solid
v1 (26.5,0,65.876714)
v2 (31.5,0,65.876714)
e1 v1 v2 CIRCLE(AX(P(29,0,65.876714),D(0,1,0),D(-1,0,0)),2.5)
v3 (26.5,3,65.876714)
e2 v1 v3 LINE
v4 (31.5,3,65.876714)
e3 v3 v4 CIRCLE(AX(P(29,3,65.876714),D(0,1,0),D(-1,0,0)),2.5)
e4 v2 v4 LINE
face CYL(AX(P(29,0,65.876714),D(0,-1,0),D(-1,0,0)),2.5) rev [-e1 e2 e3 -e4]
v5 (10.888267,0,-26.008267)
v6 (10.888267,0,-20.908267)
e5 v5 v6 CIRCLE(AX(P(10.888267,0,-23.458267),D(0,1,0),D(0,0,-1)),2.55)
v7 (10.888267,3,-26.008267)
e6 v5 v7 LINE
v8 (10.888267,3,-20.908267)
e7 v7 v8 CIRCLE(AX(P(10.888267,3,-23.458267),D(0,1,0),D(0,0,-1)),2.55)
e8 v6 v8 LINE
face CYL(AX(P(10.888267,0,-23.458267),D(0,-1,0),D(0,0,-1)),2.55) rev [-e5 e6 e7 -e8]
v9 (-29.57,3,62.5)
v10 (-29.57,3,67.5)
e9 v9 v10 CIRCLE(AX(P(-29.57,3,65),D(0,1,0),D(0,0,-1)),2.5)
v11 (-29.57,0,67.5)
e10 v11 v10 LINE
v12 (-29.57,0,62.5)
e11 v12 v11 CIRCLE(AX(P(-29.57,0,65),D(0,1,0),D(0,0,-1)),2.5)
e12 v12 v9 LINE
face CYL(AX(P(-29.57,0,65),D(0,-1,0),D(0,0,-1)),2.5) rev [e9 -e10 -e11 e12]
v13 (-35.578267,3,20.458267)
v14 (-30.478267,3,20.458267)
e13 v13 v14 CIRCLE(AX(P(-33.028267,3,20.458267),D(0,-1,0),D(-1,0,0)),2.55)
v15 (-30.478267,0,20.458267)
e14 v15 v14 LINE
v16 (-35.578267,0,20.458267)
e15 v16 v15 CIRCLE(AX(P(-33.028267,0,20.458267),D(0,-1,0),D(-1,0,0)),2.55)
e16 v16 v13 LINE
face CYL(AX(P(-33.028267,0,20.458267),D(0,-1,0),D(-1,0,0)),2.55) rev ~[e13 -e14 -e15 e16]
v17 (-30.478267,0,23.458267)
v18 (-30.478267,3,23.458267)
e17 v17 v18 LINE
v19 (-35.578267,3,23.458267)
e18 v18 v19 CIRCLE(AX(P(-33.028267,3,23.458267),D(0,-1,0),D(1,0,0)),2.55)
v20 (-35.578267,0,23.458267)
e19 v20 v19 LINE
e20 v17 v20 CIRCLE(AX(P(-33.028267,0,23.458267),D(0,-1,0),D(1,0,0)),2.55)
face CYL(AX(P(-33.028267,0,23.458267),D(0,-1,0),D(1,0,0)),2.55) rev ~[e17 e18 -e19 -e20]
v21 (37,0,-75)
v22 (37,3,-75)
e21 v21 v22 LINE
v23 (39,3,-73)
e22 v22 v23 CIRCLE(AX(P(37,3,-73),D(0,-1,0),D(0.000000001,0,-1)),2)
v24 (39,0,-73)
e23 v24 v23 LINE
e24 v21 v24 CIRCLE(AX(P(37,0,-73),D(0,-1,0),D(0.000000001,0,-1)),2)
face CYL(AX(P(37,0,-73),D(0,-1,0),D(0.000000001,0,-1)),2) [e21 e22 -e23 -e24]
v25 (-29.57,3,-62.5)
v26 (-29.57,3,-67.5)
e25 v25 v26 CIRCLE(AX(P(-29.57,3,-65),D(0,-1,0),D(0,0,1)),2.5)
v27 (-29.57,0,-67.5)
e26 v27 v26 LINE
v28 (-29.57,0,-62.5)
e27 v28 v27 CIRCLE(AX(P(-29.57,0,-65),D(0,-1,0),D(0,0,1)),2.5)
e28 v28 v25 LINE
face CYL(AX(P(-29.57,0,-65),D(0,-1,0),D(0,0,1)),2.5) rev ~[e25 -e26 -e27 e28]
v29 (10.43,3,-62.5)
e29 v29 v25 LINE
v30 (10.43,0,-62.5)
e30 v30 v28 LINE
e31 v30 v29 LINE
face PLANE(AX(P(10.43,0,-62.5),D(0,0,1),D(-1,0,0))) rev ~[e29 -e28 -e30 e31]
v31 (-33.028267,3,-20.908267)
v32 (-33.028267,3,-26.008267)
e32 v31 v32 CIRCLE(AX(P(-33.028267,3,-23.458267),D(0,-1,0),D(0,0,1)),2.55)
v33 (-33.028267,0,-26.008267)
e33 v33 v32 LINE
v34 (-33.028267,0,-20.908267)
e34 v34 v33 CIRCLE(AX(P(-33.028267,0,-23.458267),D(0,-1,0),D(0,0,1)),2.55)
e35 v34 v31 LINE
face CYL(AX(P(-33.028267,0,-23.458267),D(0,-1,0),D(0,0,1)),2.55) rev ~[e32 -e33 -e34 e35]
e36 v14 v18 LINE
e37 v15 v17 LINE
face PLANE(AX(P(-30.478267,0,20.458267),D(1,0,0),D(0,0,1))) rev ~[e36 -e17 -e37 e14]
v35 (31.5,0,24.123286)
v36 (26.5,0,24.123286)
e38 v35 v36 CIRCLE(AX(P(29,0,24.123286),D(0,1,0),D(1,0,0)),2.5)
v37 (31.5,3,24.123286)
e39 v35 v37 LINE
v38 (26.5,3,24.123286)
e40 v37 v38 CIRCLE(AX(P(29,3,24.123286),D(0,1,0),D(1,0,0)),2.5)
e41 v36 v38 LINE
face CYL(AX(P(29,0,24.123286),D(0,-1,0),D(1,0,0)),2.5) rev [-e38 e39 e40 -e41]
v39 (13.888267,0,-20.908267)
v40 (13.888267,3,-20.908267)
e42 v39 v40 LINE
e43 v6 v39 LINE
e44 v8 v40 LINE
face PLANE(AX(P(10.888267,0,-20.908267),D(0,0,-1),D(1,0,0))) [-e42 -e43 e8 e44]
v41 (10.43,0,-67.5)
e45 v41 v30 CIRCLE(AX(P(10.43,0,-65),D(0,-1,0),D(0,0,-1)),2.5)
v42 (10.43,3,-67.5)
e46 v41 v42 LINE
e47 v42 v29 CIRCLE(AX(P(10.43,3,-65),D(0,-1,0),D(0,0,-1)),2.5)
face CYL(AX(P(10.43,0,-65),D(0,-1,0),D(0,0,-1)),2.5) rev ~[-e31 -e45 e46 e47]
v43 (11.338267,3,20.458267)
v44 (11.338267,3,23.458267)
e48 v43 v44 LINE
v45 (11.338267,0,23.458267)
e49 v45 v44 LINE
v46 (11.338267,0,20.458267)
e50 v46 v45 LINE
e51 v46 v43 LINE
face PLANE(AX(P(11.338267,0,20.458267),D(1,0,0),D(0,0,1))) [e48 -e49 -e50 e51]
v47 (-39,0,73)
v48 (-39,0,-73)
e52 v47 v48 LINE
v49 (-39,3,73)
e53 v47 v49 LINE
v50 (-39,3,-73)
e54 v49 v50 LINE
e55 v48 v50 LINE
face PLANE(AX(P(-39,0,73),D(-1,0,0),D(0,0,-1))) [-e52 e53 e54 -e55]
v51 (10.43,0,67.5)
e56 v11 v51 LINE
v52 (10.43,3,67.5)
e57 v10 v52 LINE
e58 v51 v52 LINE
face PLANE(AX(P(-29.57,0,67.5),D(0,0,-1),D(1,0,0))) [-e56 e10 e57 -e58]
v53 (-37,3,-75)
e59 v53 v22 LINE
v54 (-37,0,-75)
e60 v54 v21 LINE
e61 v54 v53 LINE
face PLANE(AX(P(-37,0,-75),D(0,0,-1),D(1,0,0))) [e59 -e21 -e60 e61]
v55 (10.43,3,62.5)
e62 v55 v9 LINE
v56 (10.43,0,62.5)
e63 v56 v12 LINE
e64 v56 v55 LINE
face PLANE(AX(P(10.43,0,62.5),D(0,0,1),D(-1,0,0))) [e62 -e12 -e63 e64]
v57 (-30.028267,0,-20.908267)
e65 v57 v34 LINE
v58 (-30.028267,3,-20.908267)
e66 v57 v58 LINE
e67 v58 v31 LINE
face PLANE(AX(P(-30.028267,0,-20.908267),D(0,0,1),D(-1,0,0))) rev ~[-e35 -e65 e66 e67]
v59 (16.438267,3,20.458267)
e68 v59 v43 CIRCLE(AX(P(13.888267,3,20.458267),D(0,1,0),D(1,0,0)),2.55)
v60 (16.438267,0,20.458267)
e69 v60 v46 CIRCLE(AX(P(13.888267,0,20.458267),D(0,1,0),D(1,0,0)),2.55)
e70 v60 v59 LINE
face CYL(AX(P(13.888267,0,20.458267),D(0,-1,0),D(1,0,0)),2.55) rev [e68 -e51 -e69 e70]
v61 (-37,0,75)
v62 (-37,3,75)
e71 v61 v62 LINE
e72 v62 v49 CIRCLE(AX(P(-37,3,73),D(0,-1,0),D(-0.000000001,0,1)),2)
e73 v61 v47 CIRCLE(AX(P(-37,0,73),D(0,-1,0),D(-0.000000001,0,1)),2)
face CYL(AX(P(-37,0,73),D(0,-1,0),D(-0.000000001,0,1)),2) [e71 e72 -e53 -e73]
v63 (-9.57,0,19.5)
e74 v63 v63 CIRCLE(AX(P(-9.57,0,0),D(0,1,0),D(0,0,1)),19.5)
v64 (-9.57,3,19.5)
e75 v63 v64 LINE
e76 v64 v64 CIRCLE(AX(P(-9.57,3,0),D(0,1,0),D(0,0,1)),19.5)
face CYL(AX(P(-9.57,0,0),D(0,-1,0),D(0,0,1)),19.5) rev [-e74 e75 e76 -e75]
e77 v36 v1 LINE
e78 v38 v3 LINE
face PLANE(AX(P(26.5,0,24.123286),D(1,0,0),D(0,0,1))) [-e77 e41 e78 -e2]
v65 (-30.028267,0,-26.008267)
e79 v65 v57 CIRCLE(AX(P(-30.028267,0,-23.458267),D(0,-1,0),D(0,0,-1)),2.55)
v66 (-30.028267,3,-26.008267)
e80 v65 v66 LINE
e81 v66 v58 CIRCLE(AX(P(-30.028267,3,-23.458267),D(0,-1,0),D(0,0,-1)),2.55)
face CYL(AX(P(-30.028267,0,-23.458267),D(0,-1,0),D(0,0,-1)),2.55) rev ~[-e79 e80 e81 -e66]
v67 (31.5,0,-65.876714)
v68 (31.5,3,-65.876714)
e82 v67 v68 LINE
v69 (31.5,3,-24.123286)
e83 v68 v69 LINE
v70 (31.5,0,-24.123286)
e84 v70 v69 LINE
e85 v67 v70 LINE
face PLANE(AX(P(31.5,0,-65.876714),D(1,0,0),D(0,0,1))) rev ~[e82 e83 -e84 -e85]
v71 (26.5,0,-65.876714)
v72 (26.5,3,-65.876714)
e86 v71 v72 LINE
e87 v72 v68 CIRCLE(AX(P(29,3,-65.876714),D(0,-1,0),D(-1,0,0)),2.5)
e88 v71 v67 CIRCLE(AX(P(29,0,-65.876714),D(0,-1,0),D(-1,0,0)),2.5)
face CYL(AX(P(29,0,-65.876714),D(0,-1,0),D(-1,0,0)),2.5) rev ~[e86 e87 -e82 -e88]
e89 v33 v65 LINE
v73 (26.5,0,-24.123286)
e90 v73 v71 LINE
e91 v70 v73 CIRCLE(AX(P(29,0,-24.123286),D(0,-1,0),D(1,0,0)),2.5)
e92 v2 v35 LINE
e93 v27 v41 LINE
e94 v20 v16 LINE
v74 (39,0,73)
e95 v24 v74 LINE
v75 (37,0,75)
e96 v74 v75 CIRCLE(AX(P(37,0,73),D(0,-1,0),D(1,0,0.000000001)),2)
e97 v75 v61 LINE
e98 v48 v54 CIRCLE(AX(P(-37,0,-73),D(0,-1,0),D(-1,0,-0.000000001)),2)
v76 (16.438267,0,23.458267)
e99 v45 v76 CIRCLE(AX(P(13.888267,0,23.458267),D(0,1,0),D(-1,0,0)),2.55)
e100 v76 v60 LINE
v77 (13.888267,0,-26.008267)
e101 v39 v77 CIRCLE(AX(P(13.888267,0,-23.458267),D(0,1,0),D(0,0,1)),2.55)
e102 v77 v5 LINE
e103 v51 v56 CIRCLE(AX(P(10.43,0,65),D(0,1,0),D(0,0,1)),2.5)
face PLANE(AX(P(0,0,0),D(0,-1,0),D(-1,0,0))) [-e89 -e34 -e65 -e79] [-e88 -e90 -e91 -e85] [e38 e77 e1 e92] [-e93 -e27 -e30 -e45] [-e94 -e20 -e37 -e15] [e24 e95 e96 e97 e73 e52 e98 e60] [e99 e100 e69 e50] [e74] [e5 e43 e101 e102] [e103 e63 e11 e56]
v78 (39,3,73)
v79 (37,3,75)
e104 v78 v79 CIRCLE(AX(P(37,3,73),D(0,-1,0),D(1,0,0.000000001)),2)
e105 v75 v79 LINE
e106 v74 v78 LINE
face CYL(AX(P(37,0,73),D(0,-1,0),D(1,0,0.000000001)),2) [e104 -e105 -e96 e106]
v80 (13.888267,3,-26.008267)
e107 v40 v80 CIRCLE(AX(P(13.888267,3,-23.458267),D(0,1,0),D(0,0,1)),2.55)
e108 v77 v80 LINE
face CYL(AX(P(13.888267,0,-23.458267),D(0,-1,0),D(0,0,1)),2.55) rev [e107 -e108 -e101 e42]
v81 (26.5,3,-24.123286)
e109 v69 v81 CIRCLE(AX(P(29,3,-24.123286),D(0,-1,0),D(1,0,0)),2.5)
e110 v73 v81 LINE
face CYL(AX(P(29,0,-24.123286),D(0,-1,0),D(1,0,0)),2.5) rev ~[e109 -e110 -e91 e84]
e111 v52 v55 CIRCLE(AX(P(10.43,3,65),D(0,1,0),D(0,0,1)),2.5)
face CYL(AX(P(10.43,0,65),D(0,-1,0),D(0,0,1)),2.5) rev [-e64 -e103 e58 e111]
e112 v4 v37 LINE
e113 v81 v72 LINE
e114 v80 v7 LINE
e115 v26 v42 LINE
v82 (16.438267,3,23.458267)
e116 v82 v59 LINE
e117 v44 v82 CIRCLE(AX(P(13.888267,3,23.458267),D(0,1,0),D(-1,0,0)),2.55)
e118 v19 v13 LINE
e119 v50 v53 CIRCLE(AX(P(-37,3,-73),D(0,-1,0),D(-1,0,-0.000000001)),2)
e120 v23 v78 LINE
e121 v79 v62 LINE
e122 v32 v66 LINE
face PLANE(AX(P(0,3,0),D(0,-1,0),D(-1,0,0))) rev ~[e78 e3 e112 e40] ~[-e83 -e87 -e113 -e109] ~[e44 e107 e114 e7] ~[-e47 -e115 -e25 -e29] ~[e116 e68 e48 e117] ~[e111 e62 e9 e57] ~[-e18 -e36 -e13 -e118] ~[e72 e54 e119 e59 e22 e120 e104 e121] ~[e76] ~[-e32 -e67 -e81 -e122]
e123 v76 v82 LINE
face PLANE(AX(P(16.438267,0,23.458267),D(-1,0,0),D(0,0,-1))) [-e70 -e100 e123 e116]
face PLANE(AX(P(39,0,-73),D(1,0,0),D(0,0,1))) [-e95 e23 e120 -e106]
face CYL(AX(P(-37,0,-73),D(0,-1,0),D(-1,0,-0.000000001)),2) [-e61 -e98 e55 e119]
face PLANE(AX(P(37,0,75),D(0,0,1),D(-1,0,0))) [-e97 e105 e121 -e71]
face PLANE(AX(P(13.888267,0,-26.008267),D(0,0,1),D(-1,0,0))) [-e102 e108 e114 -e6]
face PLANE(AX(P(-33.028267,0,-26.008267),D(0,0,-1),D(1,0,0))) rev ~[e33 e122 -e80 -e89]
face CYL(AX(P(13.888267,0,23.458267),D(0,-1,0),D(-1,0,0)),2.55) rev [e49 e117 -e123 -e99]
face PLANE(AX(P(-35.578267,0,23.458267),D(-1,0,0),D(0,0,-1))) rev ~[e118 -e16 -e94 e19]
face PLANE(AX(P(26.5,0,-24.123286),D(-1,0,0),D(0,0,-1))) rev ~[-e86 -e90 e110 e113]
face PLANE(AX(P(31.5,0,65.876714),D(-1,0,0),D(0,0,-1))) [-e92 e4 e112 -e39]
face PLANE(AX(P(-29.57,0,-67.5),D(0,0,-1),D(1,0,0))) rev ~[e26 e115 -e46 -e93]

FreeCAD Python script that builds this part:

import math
import FreeCAD as App
import Part
import Sketcher

doc = App.newDocument("Part")
body = doc.addObject("PartDesign::Body", "Body")

# Sketch on XZ plane
sketch1 = body.newObject("Sketcher::SketchObject", "Sketch")
sketch1.AttachmentSupport = (doc.getObject("XZ_Plane"), [""])
sketch1.MapMode = "FlatFace"
sketch1.addGeometry([
    Part.LineSegment(App.Vector(37, -75, 0), App.Vector(-37, -75, 0)),  # 0
    Part.ArcOfCircle(Part.Circle(App.Vector(-37, -73, 0), App.Vector(0, 0, 1), 2), math.radians(-180), math.radians(-90)),  # 1
    Part.LineSegment(App.Vector(-39, -73, 0), App.Vector(-39, 73, 0)),  # 2
    Part.ArcOfCircle(Part.Circle(App.Vector(-37, 73, 0), App.Vector(0, 0, 1), 2), math.radians(90), math.radians(180)),  # 3
    Part.LineSegment(App.Vector(-37, 75, 0), App.Vector(37, 75, 0)),  # 4
    Part.ArcOfCircle(Part.Circle(App.Vector(37, 73, 0), App.Vector(0, 0, 1), 2), math.radians(0), math.radians(90)),  # 5
    Part.LineSegment(App.Vector(39, 73, 0), App.Vector(39, -73, 0)),  # 6
    Part.ArcOfCircle(Part.Circle(App.Vector(37, -73, 0), App.Vector(0, 0, 1), 2), math.radians(-90), math.radians(0)),  # 7
    Part.ArcOfCircle(Part.Circle(App.Vector(29, 65.9, 0), App.Vector(0, 0, 1), 2.5), math.radians(0), math.radians(180)),  # 8
    Part.LineSegment(App.Vector(26.5, 65.9, 0), App.Vector(26.5, 24.1, 0)),  # 9
    Part.ArcOfCircle(Part.Circle(App.Vector(29, 24.1, 0), App.Vector(0, 0, 1), 2.5), math.radians(180), math.radians(360)),  # 10
    Part.LineSegment(App.Vector(31.5, 24.1, 0), App.Vector(31.5, 65.9, 0)),  # 11
    Part.ArcOfCircle(Part.Circle(App.Vector(13.9, 23.5, 0), App.Vector(0, 0, 1), 2.5), math.radians(0), math.radians(180)),  # 12
    Part.LineSegment(App.Vector(11.3, 23.5, 0), App.Vector(11.3, 20.5, 0)),  # 13
    Part.ArcOfCircle(Part.Circle(App.Vector(13.9, 20.5, 0), App.Vector(0, 0, 1), 2.5), math.radians(180), math.radians(360)),  # 14
    Part.LineSegment(App.Vector(16.4, 20.5, 0), App.Vector(16.4, 23.5, 0)),  # 15
    Part.ArcOfCircle(Part.Circle(App.Vector(-29.6, 65, 0), App.Vector(0, 0, 1), 2.5), math.radians(90), math.radians(270)),  # 16
    Part.LineSegment(App.Vector(-29.6, 62.5, 0), App.Vector(10.4, 62.5, 0)),  # 17
    Part.ArcOfCircle(Part.Circle(App.Vector(10.4, 65, 0), App.Vector(0, 0, 1), 2.5), math.radians(-90), math.radians(90)),  # 18
    Part.LineSegment(App.Vector(10.4, 67.5, 0), App.Vector(-29.6, 67.5, 0)),  # 19
    Part.LineSegment(App.Vector(-35.6, 23.5, 0), App.Vector(-35.6, 20.5, 0)),  # 20
    Part.ArcOfCircle(Part.Circle(App.Vector(-33, 20.5, 0), App.Vector(0, 0, 1), 2.5), math.radians(180), math.radians(360)),  # 21
    Part.LineSegment(App.Vector(-30.5, 20.5, 0), App.Vector(-30.5, 23.5, 0)),  # 22
    Part.ArcOfCircle(Part.Circle(App.Vector(-33, 23.5, 0), App.Vector(0, 0, 1), 2.5), math.radians(0), math.radians(180)),  # 23
    Part.ArcOfCircle(Part.Circle(App.Vector(13.9, -23.5, 0), App.Vector(0, 0, 1), 2.5), math.radians(-90), math.radians(90)),  # 24
    Part.LineSegment(App.Vector(13.9, -20.9, 0), App.Vector(10.9, -20.9, 0)),  # 25
    Part.ArcOfCircle(Part.Circle(App.Vector(10.9, -23.5, 0), App.Vector(0, 0, 1), 2.5), math.radians(90), math.radians(270)),  # 26
    Part.LineSegment(App.Vector(10.9, -26, 0), App.Vector(13.9, -26, 0)),  # 27
    Part.LineSegment(App.Vector(31.5, -65.9, 0), App.Vector(31.5, -24.1, 0)),  # 28
    Part.ArcOfCircle(Part.Circle(App.Vector(29, -24.1, 0), App.Vector(0, 0, 1), 2.5), math.radians(0), math.radians(180)),  # 29
    Part.LineSegment(App.Vector(26.5, -24.1, 0), App.Vector(26.5, -65.9, 0)),  # 30
    Part.ArcOfCircle(Part.Circle(App.Vector(29, -65.9, 0), App.Vector(0, 0, 1), 2.5), math.radians(180), math.radians(360)),  # 31
    Part.Circle(App.Vector(-9.6, 0, 0), App.Vector(0, 0, 1), 19.5),  # 32
    Part.LineSegment(App.Vector(-33, -26, 0), App.Vector(-30, -26, 0)),  # 33
    Part.ArcOfCircle(Part.Circle(App.Vector(-30, -23.5, 0), App.Vector(0, 0, 1), 2.5), math.radians(-90), math.radians(90)),  # 34
    Part.LineSegment(App.Vector(-30, -20.9, 0), App.Vector(-33, -20.9, 0)),  # 35
    Part.ArcOfCircle(Part.Circle(App.Vector(-33, -23.5, 0), App.Vector(0, 0, 1), 2.5), math.radians(90), math.radians(270)),  # 36
    Part.LineSegment(App.Vector(-29.6, -67.5, 0), App.Vector(10.4, -67.5, 0)),  # 37
    Part.ArcOfCircle(Part.Circle(App.Vector(10.4, -65, 0), App.Vector(0, 0, 1), 2.5), math.radians(-90), math.radians(90)),  # 38
    Part.LineSegment(App.Vector(10.4, -62.5, 0), App.Vector(-29.6, -62.5, 0)),  # 39
    Part.ArcOfCircle(Part.Circle(App.Vector(-29.6, -65, 0), App.Vector(0, 0, 1), 2.5), math.radians(90), math.radians(270)),  # 40
], False)
sketch1.addConstraint([
    Sketcher.Constraint("Tangent", 0, 2, 1, 2),
    Sketcher.Constraint("Tangent", 1, 1, 2, 1),
    Sketcher.Constraint("Tangent", 2, 2, 3, 2),
    Sketcher.Constraint("Tangent", 3, 1, 4, 1),
    Sketcher.Constraint("Tangent", 4, 2, 5, 2),
    Sketcher.Constraint("Tangent", 5, 1, 6, 1),
    Sketcher.Constraint("Tangent", 6, 2, 7, 2),
    Sketcher.Constraint("Tangent", 7, 1, 0, 1),
    Sketcher.Constraint("Tangent", 8, 2, 9, 1),
    Sketcher.Constraint("Tangent", 9, 2, 10, 1),
    Sketcher.Constraint("Tangent", 10, 2, 11, 1),
    Sketcher.Constraint("Tangent", 11, 2, 8, 1),
    Sketcher.Constraint("Tangent", 12, 2, 13, 1),
    Sketcher.Constraint("Tangent", 13, 2, 14, 1),
    Sketcher.Constraint("Tangent", 14, 2, 15, 1),
    Sketcher.Constraint("Tangent", 15, 2, 12, 1),
    Sketcher.Constraint("Tangent", 16, 2, 17, 1),
    Sketcher.Constraint("Tangent", 17, 2, 18, 1),
    Sketcher.Constraint("Tangent", 18, 2, 19, 1),
    Sketcher.Constraint("Tangent", 19, 2, 16, 1),
    Sketcher.Constraint("Tangent", 20, 2, 21, 1),
    Sketcher.Constraint("Tangent", 21, 2, 22, 1),
    Sketcher.Constraint("Tangent", 22, 2, 23, 1),
    Sketcher.Constraint("Tangent", 23, 2, 20, 1),
    Sketcher.Constraint("Tangent", 24, 2, 25, 1),
    Sketcher.Constraint("Tangent", 25, 2, 26, 1),
    Sketcher.Constraint("Tangent", 26, 2, 27, 1),
    Sketcher.Constraint("Tangent", 27, 2, 24, 1),
    Sketcher.Constraint("Tangent", 28, 2, 29, 1),
    Sketcher.Constraint("Tangent", 29, 2, 30, 1),
    Sketcher.Constraint("Tangent", 30, 2, 31, 1),
    Sketcher.Constraint("Tangent", 31, 2, 28, 1),
    Sketcher.Constraint("Tangent", 33, 2, 34, 1),
    Sketcher.Constraint("Tangent", 34, 2, 35, 1),
    Sketcher.Constraint("Tangent", 35, 2, 36, 1),
    Sketcher.Constraint("Tangent", 36, 2, 33, 1),
    Sketcher.Constraint("Tangent", 37, 2, 38, 1),
    Sketcher.Constraint("Tangent", 38, 2, 39, 1),
    Sketcher.Constraint("Tangent", 39, 2, 40, 1),
    Sketcher.Constraint("Tangent", 40, 2, 37, 1),
    Sketcher.Constraint("Horizontal", 0),
    Sketcher.Constraint("Vertical", 2),
    Sketcher.Constraint("Horizontal", 4),
    Sketcher.Constraint("Vertical", 6),
    Sketcher.Constraint("Vertical", 9),
    Sketcher.Constraint("Vertical", 11),
    Sketcher.Constraint("Vertical", 13),
    Sketcher.Constraint("Vertical", 15),
    Sketcher.Constraint("Horizontal", 17),
    Sketcher.Constraint("Horizontal", 19),
    Sketcher.Constraint("Vertical", 20),
    Sketcher.Constraint("Vertical", 22),
    Sketcher.Constraint("Horizontal", 25),
    Sketcher.Constraint("Horizontal", 27),
    Sketcher.Constraint("Vertical", 28),
    Sketcher.Constraint("Vertical", 30),
    Sketcher.Constraint("Horizontal", 33),
    Sketcher.Constraint("Horizontal", 35),
    Sketcher.Constraint("Horizontal", 37),
    Sketcher.Constraint("Horizontal", 39),
    Sketcher.Constraint("Equal", 1, 3),
    Sketcher.Constraint("Equal", 3, 5),
    Sketcher.Constraint("Equal", 5, 7),
    Sketcher.Constraint("Equal", 10, 16),
    Sketcher.Constraint("Equal", 14, 21),
    Sketcher.Constraint("Equal", 23, 24),
    Sketcher.Constraint("Equal", 18, 29),
    Sketcher.Constraint("Equal", 26, 34),
    Sketcher.Constraint("Equal", 31, 38),
    Sketcher.Constraint("Symmetric", 1, 3, 5, 3, -1, 1),
    Sketcher.Constraint("Symmetric", 12, 3, 24, 3, -1),
    Sketcher.Constraint("Symmetric", 10, 3, 29, 3, -1),
    Sketcher.Constraint("Symmetric", 23, 3, 36, 3, -1),
    Sketcher.Constraint("Symmetric", 18, 3, 38, 3, -1),
    Sketcher.Constraint("PointOnObject", 32, 3, -1),
    Sketcher.Constraint("Horizontal", 14, 3, 21, 3),
    Sketcher.Constraint("Horizontal", 12, 3, 23, 3),
    Sketcher.Constraint("Vertical", 16, 3, 40, 3),
    Sketcher.Constraint("Equal", 27, 33),
    Sketcher.Constraint("Equal", 35, 13),
    Sketcher.Constraint("Equal", 11, 28),
    Sketcher.Constraint("Diameter", 32, 39.0),
    Sketcher.Constraint("Radius", 1, 2.0),
    Sketcher.Constraint("Radius", 8, 2.5),
    Sketcher.Constraint("DistanceX", 0, 2, 0, 1, 74.0),
    Sketcher.Constraint("DistanceX", 17, 1, 17, 2, 40.0),
    Sketcher.Constraint("DistanceX", 25, 2, 25, 1, 3.0),
    Sketcher.Constraint("DistanceY", 2, 1, 2, 2, 146.0),
    Sketcher.Constraint("Radius", 12, 2.55),
    Sketcher.Constraint("DistanceX", -1, 1, 8, 3, 29.0),
    Sketcher.Constraint("DistanceY", -1, 1, 16, 3, 65.0),
    Sketcher.Constraint("DistanceX", 16, 3, -1, 1, 29.57),
    Sketcher.Constraint("DistanceX", 32, 3, -1, 1, 9.57),
    Sketcher.Constraint("DistanceY", 9, 2, 9, 1, 41.753427),
    Sketcher.Constraint("DistanceY", -1, 1, 8, 3, 65.876714),
    Sketcher.Constraint("DistanceX", -1, 1, 12, 3, 13.888267),
    Sketcher.Constraint("DistanceY", -1, 1, 12, 3, 23.458267),
    Sketcher.Constraint("DistanceX", 21, 3, -1, 1, 33.028267),
])
pad1 = body.newObject("PartDesign::Pad", "Pad")
pad1.Profile = sketch1
pad1.Length = 3
pad1.Reversed = True

doc.recompute()
